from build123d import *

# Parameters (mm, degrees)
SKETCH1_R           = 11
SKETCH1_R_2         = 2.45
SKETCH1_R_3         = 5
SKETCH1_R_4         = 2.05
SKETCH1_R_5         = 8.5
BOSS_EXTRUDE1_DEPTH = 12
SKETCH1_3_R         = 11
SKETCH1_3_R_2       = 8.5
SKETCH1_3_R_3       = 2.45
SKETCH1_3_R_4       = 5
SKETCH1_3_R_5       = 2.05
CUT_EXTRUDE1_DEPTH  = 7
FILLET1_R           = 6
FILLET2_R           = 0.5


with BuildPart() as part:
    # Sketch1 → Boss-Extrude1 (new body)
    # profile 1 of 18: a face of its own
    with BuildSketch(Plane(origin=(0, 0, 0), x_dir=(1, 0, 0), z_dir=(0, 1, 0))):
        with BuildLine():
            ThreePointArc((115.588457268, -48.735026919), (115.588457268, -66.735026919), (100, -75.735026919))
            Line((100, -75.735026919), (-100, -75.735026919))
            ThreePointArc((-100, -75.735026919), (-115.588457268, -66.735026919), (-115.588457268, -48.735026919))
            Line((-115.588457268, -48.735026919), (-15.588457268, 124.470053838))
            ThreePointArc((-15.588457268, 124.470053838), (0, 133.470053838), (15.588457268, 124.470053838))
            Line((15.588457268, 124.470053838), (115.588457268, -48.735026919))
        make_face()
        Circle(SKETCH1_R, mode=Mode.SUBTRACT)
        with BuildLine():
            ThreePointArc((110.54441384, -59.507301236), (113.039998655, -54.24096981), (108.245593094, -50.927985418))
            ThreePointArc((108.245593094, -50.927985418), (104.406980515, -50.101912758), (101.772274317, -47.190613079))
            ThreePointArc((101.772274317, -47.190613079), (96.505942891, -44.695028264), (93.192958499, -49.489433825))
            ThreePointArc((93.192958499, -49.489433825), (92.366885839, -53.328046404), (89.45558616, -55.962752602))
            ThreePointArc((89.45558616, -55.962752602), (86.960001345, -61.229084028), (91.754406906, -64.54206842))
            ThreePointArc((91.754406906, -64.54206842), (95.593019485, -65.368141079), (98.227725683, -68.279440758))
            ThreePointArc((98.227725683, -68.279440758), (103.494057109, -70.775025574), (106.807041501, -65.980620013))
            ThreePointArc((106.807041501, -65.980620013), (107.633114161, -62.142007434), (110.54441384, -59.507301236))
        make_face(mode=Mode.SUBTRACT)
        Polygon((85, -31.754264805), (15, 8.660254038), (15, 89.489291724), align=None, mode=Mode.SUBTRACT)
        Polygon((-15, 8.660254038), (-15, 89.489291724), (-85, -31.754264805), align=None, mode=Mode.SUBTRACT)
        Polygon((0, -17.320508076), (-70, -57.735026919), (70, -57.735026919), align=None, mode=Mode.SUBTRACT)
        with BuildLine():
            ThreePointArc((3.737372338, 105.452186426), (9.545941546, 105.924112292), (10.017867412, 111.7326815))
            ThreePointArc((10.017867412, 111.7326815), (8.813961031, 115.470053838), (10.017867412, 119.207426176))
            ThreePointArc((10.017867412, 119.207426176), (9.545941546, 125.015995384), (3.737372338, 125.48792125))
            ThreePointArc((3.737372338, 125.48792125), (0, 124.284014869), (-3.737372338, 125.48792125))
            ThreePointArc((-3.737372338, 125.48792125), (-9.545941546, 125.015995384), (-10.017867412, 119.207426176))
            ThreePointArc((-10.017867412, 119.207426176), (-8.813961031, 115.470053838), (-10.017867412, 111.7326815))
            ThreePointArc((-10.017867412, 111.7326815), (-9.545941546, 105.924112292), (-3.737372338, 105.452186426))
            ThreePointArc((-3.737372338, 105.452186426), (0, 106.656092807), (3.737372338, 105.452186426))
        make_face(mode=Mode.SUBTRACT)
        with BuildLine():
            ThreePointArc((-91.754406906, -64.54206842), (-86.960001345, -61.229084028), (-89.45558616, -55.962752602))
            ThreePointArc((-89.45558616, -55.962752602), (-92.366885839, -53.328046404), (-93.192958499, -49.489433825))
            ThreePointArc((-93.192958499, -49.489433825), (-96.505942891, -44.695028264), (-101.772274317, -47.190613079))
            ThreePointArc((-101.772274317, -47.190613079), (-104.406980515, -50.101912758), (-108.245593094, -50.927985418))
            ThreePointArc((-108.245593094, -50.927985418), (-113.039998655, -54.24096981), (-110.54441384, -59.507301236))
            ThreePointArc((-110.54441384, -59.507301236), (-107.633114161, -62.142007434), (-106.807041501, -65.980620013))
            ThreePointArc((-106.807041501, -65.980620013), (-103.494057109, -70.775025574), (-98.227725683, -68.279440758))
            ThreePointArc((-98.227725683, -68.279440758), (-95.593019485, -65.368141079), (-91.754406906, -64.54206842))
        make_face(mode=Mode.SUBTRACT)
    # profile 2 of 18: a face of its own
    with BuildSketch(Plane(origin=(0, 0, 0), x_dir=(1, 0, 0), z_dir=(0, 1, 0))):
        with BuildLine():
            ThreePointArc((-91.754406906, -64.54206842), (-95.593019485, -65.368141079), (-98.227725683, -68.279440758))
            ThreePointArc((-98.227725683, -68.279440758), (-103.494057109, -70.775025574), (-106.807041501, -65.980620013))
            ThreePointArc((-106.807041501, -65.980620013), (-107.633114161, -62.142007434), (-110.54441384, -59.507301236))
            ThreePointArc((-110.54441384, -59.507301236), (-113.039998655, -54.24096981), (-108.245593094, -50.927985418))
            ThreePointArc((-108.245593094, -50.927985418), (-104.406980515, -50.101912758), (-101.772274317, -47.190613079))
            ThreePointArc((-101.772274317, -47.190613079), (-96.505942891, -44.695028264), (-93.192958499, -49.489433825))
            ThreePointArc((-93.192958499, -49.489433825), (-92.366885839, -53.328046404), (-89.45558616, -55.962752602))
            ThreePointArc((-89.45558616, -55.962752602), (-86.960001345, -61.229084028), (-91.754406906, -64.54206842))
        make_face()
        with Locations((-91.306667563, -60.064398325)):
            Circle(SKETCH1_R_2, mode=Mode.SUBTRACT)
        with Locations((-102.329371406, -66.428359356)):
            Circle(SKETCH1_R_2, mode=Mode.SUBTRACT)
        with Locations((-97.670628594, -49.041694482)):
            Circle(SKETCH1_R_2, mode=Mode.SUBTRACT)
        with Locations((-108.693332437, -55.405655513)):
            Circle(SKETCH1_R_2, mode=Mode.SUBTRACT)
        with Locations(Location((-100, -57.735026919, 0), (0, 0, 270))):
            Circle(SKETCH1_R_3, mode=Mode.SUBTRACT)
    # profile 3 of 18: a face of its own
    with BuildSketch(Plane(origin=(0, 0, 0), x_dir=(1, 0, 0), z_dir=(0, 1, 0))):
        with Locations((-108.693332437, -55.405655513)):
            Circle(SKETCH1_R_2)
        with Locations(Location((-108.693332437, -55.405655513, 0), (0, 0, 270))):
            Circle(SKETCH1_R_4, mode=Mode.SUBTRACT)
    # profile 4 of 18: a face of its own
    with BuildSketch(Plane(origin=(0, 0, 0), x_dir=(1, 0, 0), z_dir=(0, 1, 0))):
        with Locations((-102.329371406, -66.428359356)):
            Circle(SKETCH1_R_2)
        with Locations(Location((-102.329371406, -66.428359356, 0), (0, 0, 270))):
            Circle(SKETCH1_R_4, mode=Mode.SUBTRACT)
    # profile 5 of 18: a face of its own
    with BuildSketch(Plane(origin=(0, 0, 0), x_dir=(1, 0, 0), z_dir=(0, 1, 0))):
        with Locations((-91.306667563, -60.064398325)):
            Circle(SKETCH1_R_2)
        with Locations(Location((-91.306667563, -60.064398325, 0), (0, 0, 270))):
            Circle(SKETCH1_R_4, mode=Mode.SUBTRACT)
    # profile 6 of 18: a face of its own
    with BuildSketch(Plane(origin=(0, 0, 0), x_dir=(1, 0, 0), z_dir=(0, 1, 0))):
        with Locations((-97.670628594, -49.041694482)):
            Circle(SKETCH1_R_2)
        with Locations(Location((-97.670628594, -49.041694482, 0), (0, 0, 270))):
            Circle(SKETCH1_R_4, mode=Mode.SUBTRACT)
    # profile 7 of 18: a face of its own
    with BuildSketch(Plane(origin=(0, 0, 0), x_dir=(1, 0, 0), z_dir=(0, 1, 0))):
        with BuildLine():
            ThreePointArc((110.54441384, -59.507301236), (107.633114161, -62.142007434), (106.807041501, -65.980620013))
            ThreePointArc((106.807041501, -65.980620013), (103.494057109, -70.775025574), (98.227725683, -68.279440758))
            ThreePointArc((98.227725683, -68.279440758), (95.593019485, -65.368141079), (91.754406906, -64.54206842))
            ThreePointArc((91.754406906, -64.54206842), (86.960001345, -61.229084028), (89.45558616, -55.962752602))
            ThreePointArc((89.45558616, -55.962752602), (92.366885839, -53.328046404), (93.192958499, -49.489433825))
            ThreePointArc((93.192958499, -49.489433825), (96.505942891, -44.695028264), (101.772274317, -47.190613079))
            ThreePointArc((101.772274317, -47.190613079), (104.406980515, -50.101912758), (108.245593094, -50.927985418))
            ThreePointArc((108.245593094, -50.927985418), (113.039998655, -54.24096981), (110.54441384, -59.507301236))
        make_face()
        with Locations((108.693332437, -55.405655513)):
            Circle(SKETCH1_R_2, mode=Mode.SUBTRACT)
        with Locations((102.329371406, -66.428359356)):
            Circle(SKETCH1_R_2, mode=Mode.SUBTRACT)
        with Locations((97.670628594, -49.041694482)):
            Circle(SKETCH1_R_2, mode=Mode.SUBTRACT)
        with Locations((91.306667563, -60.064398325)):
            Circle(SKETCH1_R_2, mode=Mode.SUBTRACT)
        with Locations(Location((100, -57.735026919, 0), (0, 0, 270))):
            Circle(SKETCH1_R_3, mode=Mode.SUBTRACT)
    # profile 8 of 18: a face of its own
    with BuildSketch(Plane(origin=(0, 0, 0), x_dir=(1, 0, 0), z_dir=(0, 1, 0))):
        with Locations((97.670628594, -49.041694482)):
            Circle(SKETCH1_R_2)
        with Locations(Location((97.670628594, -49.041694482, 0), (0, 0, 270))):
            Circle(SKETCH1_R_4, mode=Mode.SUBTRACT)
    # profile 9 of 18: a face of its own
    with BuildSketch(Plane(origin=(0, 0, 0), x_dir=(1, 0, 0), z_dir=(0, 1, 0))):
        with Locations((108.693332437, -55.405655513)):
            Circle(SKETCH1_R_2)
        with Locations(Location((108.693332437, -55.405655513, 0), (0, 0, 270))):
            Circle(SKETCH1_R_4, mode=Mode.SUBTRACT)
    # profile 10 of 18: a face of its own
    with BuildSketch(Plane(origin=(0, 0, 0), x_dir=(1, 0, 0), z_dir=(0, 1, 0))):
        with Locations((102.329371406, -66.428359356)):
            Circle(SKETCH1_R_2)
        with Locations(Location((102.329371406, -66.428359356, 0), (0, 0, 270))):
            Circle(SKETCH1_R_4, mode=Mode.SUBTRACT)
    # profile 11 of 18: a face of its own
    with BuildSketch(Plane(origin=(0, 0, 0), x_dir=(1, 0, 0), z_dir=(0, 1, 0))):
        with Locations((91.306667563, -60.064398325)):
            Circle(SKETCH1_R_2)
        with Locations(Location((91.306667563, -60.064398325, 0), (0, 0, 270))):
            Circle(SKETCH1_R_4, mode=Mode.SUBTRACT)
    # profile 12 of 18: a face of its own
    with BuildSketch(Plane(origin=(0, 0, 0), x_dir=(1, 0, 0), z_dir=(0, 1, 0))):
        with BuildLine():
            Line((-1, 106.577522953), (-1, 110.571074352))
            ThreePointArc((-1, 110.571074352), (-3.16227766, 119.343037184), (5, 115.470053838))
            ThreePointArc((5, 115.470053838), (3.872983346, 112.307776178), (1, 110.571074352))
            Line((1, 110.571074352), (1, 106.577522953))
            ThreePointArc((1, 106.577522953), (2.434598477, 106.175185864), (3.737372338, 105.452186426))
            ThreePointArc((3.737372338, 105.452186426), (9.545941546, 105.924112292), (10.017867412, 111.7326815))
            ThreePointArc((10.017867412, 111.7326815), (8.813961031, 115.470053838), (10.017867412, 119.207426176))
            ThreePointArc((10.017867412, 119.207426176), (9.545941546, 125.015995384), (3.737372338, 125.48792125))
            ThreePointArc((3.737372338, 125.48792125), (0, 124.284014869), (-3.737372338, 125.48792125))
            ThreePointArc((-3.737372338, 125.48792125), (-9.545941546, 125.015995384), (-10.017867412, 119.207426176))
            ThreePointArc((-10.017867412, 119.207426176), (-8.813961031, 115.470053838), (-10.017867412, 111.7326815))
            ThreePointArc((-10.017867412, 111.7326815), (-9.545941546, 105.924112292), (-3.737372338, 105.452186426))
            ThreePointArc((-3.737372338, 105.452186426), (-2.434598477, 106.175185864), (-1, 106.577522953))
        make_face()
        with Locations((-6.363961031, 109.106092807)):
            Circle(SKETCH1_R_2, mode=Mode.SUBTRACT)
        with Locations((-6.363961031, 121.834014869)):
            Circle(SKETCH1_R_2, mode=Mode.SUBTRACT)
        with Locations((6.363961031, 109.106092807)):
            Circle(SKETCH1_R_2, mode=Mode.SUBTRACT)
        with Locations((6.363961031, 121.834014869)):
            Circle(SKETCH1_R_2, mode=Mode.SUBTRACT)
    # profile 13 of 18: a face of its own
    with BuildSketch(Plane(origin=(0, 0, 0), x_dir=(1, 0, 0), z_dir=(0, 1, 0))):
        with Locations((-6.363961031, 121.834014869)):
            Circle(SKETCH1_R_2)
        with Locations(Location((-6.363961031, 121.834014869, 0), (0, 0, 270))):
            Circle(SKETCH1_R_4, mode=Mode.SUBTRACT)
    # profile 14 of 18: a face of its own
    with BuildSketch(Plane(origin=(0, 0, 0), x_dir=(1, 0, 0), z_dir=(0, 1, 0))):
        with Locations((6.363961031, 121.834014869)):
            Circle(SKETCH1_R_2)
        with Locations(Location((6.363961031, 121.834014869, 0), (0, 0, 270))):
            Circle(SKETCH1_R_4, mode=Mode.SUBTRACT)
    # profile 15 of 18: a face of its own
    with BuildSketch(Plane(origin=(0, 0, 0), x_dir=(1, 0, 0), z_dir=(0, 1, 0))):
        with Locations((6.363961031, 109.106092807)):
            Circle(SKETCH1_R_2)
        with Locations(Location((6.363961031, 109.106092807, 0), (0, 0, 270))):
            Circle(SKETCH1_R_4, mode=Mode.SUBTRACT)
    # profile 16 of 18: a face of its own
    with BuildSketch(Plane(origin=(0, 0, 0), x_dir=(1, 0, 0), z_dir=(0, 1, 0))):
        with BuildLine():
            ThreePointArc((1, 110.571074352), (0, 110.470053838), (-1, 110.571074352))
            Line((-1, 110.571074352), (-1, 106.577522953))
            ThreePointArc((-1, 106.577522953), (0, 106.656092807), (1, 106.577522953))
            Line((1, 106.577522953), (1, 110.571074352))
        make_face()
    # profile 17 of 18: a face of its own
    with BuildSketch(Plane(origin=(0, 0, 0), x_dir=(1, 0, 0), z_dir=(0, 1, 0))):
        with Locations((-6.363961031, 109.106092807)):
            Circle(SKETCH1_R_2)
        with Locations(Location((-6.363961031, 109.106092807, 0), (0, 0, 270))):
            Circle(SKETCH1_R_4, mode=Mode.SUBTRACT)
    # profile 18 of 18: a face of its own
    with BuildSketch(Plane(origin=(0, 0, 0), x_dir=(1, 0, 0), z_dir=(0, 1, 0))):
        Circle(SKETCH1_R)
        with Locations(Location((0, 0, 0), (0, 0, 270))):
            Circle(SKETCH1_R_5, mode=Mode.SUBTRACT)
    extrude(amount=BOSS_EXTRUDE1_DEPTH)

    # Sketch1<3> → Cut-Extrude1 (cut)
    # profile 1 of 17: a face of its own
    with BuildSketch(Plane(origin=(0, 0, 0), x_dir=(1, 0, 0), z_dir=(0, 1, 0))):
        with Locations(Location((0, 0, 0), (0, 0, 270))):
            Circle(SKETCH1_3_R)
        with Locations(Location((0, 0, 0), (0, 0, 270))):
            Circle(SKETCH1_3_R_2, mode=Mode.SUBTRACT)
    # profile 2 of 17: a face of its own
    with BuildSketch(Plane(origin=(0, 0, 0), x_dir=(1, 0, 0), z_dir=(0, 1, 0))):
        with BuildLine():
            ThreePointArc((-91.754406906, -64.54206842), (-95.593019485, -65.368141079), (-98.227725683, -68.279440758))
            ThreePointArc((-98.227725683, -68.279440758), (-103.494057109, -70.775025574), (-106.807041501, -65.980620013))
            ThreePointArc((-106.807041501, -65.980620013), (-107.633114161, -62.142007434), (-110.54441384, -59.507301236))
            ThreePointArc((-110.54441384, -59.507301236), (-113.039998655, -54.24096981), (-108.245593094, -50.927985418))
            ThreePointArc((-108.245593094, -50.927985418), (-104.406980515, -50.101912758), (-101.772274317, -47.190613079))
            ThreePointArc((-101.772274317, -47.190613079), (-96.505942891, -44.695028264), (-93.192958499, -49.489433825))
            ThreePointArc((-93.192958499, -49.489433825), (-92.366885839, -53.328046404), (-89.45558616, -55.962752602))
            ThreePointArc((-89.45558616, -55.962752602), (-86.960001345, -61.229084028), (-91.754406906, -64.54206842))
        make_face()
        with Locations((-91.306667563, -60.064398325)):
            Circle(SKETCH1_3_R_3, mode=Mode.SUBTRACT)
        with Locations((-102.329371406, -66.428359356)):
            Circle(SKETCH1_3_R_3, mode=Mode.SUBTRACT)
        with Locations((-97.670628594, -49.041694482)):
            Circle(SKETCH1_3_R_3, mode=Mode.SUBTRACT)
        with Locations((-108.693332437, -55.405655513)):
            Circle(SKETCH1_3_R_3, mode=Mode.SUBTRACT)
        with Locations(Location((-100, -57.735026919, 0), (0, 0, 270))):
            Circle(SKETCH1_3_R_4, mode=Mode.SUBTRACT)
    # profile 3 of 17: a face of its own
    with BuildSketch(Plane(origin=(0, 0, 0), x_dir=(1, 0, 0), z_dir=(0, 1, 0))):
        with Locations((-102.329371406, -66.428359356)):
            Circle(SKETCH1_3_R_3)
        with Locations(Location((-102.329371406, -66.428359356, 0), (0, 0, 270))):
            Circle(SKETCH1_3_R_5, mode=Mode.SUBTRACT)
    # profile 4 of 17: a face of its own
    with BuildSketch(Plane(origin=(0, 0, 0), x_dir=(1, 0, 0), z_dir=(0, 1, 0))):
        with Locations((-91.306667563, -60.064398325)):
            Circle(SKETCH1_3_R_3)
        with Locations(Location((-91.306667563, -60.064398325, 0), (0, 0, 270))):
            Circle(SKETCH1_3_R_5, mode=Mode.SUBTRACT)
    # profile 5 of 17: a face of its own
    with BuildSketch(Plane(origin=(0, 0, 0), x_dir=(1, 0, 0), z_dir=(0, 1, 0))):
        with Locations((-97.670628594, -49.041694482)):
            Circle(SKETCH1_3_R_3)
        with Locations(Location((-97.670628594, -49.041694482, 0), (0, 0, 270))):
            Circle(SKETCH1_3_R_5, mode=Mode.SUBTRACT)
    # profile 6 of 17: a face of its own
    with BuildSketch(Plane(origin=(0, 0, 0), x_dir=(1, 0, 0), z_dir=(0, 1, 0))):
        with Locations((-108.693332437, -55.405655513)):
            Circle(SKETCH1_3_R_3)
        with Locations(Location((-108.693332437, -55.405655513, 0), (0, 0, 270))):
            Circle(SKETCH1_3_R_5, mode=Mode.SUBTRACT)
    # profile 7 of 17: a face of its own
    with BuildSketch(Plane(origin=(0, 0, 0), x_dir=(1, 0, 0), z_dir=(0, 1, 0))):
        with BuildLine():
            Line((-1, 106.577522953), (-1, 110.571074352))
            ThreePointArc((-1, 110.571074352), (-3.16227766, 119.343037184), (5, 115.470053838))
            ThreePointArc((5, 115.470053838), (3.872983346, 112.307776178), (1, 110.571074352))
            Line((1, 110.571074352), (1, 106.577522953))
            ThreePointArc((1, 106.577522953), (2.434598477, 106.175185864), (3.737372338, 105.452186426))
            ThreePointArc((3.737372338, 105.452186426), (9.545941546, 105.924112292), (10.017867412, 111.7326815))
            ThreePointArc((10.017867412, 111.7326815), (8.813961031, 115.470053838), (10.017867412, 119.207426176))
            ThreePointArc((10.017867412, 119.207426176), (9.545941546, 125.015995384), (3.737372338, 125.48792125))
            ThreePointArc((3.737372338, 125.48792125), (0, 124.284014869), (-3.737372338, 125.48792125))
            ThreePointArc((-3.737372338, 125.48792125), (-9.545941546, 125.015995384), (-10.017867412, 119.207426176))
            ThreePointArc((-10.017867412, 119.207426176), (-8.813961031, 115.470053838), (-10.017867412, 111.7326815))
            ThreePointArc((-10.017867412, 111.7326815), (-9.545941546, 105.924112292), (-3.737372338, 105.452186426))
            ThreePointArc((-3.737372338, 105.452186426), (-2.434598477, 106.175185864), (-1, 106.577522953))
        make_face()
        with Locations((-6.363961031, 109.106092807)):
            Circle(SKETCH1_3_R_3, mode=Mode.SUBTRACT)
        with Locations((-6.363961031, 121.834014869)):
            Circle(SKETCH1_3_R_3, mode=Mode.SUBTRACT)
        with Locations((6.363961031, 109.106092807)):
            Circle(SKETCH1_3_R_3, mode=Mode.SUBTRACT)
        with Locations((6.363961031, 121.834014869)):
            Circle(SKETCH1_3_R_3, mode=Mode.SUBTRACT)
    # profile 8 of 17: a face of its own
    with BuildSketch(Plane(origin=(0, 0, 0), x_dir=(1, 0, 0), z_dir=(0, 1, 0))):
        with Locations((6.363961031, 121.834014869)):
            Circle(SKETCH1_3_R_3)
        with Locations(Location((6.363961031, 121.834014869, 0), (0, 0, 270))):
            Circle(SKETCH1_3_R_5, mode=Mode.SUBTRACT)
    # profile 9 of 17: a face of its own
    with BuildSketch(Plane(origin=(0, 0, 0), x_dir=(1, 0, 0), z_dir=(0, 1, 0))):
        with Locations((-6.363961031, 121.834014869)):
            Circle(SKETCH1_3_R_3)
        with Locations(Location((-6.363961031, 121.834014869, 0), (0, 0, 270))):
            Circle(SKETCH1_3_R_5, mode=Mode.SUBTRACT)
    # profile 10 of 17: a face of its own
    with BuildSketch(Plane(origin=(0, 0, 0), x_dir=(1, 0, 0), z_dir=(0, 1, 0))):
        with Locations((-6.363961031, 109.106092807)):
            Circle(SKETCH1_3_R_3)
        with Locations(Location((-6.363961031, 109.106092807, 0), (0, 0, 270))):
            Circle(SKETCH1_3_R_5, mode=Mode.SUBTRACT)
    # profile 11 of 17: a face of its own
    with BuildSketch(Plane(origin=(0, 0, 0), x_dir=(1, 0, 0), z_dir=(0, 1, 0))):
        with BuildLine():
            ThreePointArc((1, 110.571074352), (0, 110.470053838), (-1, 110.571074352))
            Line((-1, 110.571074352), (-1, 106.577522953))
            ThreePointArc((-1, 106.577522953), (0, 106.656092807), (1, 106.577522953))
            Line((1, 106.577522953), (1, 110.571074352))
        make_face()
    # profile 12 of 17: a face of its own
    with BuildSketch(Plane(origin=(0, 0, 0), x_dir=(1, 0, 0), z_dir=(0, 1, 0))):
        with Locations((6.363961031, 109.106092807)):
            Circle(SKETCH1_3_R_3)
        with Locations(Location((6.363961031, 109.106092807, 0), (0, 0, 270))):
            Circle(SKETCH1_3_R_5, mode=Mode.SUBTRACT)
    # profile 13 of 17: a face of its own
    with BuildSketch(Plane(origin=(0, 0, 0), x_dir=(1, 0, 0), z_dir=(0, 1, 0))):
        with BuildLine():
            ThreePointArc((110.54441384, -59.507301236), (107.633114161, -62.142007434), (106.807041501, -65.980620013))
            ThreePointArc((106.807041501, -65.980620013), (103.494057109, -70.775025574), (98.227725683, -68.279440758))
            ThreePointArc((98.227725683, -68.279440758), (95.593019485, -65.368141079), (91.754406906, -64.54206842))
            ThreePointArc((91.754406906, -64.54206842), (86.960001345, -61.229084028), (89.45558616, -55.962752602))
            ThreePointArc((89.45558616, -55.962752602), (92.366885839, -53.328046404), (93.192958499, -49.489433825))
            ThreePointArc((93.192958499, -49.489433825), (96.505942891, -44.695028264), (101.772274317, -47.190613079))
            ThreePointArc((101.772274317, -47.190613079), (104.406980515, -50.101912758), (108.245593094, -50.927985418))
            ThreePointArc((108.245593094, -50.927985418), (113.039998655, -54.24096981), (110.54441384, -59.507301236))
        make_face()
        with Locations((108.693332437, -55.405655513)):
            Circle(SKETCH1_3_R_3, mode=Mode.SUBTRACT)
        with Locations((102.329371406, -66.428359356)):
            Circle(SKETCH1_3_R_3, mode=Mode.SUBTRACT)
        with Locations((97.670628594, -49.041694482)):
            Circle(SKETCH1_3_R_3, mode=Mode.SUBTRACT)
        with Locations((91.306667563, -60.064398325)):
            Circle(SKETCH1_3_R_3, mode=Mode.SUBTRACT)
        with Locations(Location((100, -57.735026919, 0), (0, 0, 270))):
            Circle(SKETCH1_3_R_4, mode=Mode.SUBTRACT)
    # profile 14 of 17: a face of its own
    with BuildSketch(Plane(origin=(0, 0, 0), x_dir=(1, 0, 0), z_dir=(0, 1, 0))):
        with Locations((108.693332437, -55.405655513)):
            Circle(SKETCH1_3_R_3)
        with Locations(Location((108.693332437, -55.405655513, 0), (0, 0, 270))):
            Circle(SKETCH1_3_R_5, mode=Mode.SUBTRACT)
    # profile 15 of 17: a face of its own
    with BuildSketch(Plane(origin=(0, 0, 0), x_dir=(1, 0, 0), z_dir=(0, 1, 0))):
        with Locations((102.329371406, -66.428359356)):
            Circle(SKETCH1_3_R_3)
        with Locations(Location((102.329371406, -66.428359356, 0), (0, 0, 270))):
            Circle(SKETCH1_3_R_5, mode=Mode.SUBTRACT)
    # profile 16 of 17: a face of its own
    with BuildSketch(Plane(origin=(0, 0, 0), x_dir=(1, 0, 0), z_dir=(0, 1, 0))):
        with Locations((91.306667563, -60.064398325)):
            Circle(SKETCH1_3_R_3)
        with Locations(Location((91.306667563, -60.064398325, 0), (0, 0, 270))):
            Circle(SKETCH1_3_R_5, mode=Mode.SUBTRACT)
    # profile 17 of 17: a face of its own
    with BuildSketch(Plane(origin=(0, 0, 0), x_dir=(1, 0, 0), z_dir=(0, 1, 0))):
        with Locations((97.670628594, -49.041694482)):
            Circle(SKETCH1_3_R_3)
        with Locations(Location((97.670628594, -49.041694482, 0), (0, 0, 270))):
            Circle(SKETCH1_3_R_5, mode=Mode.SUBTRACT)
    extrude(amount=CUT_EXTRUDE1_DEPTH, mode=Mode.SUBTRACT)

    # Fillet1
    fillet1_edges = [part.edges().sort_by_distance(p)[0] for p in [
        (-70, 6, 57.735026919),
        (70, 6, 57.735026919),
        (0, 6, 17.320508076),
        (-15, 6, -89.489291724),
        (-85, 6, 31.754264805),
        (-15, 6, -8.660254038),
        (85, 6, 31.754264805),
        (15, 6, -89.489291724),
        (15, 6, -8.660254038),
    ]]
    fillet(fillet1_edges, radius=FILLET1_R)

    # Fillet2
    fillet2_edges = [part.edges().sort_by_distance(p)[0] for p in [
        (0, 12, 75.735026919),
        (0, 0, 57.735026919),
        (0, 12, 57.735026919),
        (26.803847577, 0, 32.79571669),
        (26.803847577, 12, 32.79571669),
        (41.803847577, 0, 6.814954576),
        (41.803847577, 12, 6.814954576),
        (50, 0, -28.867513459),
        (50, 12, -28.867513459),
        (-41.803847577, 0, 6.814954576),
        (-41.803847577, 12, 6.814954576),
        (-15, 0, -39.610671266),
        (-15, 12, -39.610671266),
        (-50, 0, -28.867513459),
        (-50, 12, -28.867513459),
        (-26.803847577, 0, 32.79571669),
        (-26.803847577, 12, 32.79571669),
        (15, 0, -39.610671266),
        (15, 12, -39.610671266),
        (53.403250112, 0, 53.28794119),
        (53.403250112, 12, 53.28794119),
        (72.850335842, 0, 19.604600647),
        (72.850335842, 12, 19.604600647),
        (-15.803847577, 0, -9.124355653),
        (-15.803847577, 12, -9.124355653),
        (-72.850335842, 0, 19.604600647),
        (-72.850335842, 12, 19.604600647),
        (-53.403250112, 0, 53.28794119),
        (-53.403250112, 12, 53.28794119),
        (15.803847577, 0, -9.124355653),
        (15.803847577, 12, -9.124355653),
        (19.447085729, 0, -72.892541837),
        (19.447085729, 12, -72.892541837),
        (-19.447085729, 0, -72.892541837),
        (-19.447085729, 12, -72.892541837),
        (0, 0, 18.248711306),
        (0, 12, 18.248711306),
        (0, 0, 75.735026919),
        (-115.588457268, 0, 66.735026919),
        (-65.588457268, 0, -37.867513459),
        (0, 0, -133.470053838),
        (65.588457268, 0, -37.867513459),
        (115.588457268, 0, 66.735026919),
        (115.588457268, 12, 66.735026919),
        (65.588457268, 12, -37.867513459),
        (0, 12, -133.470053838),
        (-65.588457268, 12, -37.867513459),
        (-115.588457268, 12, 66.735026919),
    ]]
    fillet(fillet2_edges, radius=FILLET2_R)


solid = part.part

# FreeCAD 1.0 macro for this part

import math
import FreeCAD as App
import Part
import Sketcher
Q = App.Units.Quantity


def edges_at(feature, points):
    """Names of the edges that pass closest to the given points."""
    edges = feature.Shape.Edges
    near = lambda p: min(range(len(edges)), key=lambda i: edges[i].distToShape(Part.Vertex(*p))[0])
    return sorted({f"Edge{near(p) + 1}" for p in points})

doc = App.newDocument("Part")
body = doc.addObject("PartDesign::Body", "Body")

# Sketch on XZ plane
sketch1 = body.newObject("Sketcher::SketchObject", "Sketch")
sketch1.AttachmentSupport = (doc.getObject("XZ_Plane"), [""])
sketch1.MapMode = "FlatFace"
sketch1.addGeometry([
    Part.ArcOfCircle(Part.Circle(App.Vector(100, 57.7, 0), App.Vector(0, 0, 1), 18), math.radians(-30), math.radians(90)),  # 0
    Part.LineSegment(App.Vector(115.6, 48.7, 0), App.Vector(15.6, -124.5, 0)),  # 1
    Part.ArcOfCircle(Part.Circle(App.Vector(0, -115.5, 0), App.Vector(0, 0, 1), 18), math.radians(-150), math.radians(-30)),  # 2
    Part.LineSegment(App.Vector(-15.6, -124.5, 0), App.Vector(-115.6, 48.7, 0)),  # 3
    Part.ArcOfCircle(Part.Circle(App.Vector(-100, 57.7, 0), App.Vector(0, 0, 1), 18), math.radians(90), math.radians(210)),  # 4
    Part.LineSegment(App.Vector(-100, 75.7, 0), App.Vector(100, 75.7, 0)),  # 5
    Part.LineSegment(App.Vector(0, 17.3, 0), App.Vector(70, 57.7, 0)),  # 6
    Part.LineSegment(App.Vector(70, 57.7, 0), App.Vector(-70, 57.7, 0)),  # 7
    Part.LineSegment(App.Vector(-70, 57.7, 0), App.Vector(0, 17.3, 0)),  # 8
    Part.LineSegment(App.Vector(85, 31.8, 0), App.Vector(15, -8.7, 0)),  # 9
    Part.LineSegment(App.Vector(15, -8.7, 0), App.Vector(15, -89.5, 0)),  # 10
    Part.LineSegment(App.Vector(15, -89.5, 0), App.Vector(85, 31.8, 0)),  # 11
    Part.LineSegment(App.Vector(-15, -8.7, 0), App.Vector(-85, 31.8, 0)),  # 12
    Part.LineSegment(App.Vector(-85, 31.8, 0), App.Vector(-15, -89.5, 0)),  # 13
    Part.LineSegment(App.Vector(-15, -89.5, 0), App.Vector(-15, -8.7, 0)),  # 14
    Part.Circle(App.Vector(100, 57.7, 0), App.Vector(0, 0, 1), 5),  # 15
    Part.Circle(App.Vector(-100, 57.7, 0), App.Vector(0, 0, 1), 5),  # 16
    Part.Circle(App.Vector(0, 0, 0), App.Vector(0, 0, 1), 8.5),  # 17
    Part.ArcOfCircle(Part.Circle(App.Vector(0, -115.5, 0), App.Vector(0, 0, 1), 5), math.radians(102), math.radians(360)),  # 18
    Part.ArcOfCircle(Part.Circle(App.Vector(0, -115.5, 0), App.Vector(0, 0, 1), 5), math.radians(0), math.radians(78)),  # 19
    Part.ArcOfCircle(Part.Circle(App.Vector(0, -115.5, 0), App.Vector(0, 0, 1), 5), math.radians(78), math.radians(102)),  # 20
    Part.Circle(App.Vector(97.7, 49, 0), App.Vector(0, 0, 1), 2),  # 21
    Part.Circle(App.Vector(108.7, 55.4, 0), App.Vector(0, 0, 1), 2),  # 22
    Part.Circle(App.Vector(102.3, 66.4, 0), App.Vector(0, 0, 1), 2),  # 23
    Part.Circle(App.Vector(91.3, 60.1, 0), App.Vector(0, 0, 1), 2),  # 24
    Part.Circle(App.Vector(-108.7, 55.4, 0), App.Vector(0, 0, 1), 2),  # 25
    Part.Circle(App.Vector(-91.3, 60.1, 0), App.Vector(0, 0, 1), 2),  # 26
    Part.Circle(App.Vector(-102.3, 66.4, 0), App.Vector(0, 0, 1), 2),  # 27
    Part.Circle(App.Vector(-97.7, 49, 0), App.Vector(0, 0, 1), 2),  # 28
    Part.Circle(App.Vector(6.4, -121.8, 0), App.Vector(0, 0, 1), 2),  # 29
    Part.Circle(App.Vector(6.4, -109.1, 0), App.Vector(0, 0, 1), 2),  # 30
    Part.Circle(App.Vector(-6.4, -121.8, 0), App.Vector(0, 0, 1), 2),  # 31
    Part.Circle(App.Vector(-6.4, -109.1, 0), App.Vector(0, 0, 1), 2),  # 32
], False)
sketch1.addConstraint([
    Sketcher.Constraint("Tangent", 0, 1, 1, 1),
    Sketcher.Constraint("Tangent", 1, 2, 2, 2),
    Sketcher.Constraint("Tangent", 2, 1, 3, 1),
    Sketcher.Constraint("Tangent", 3, 2, 4, 2),
    Sketcher.Constraint("Tangent", 4, 1, 5, 1),
    Sketcher.Constraint("Tangent", 5, 2, 0, 2),
    Sketcher.Constraint("Coincident", 6, 2, 7, 1),
    Sketcher.Constraint("Coincident", 7, 2, 8, 1),
    Sketcher.Constraint("Coincident", 8, 2, 6, 1),
    Sketcher.Constraint("Coincident", 9, 2, 10, 1),
    Sketcher.Constraint("Coincident", 10, 2, 11, 1),
    Sketcher.Constraint("Coincident", 11, 2, 9, 1),
    Sketcher.Constraint("Coincident", 12, 2, 13, 1),
    Sketcher.Constraint("Coincident", 13, 2, 14, 1),
    Sketcher.Constraint("Coincident", 14, 2, 12, 1),
    Sketcher.Constraint("Tangent", 18, 2, 19, 1),
    Sketcher.Constraint("Tangent", 19, 2, 20, 1),
    Sketcher.Constraint("Tangent", 20, 2, 18, 1),
    Sketcher.Constraint("Horizontal", 5),
    Sketcher.Constraint("Horizontal", 7),
    Sketcher.Constraint("Vertical", 10),
    Sketcher.Constraint("Vertical", 14),
    Sketcher.Constraint("Coincident", 17, 3, -1, 1),
    Sketcher.Constraint("Coincident", 15, 3, 0, 3),
    Sketcher.Constraint("Coincident", 16, 3, 4, 3),
    Sketcher.Constraint("Coincident", 18, 3, 2, 3),
    Sketcher.Constraint("Equal", 0, 2),
    Sketcher.Constraint("Equal", 2, 4),
    Sketcher.Constraint("Equal", 15, 16),
    Sketcher.Constraint("Equal", 16, 18),
    Sketcher.Constraint("Equal", 21, 22),
    Sketcher.Constraint("Equal", 22, 23),
    Sketcher.Constraint("Equal", 23, 24),
    Sketcher.Constraint("Equal", 24, 25),
    Sketcher.Constraint("Equal", 25, 26),
    Sketcher.Constraint("Equal", 26, 27),
    Sketcher.Constraint("Equal", 27, 28),
    Sketcher.Constraint("Equal", 28, 29),
    Sketcher.Constraint("Equal", 29, 30),
    Sketcher.Constraint("Equal", 30, 31),
    Sketcher.Constraint("Equal", 31, 32),
    Sketcher.Constraint("Symmetric", 22, 3, 25, 3, -2),
    Sketcher.Constraint("Symmetric", 24, 3, 26, 3, -2),
    Sketcher.Constraint("Symmetric", 23, 3, 27, 3, -2),
    Sketcher.Constraint("Symmetric", 21, 3, 28, 3, -2),
    Sketcher.Constraint("Symmetric", 29, 3, 31, 3, -2),
    Sketcher.Constraint("Symmetric", 30, 3, 32, 3, -2),
    Sketcher.Constraint("Symmetric", 1, 2, 2, 1, -2),
    Sketcher.Constraint("Symmetric", 11, 2, 12, 2, -2),
    Sketcher.Constraint("Symmetric", 10, 2, 13, 2, -2),
    Sketcher.Constraint("PointOnObject", 8, 2, -2),
    Sketcher.Constraint("Perpendicular", 3, 6),
    Sketcher.Constraint("Perpendicular", 1, 8),
    Sketcher.Constraint("Parallel", 6, 9),
    Sketcher.Constraint("Perpendicular", 8, 11),
    Sketcher.Constraint("Perpendicular", 11, 12),
    Sketcher.Constraint("Horizontal", 16, 3, 6, 2),
    Sketcher.Constraint("Horizontal", 20, 3, 18, 2),
    Sketcher.Constraint("Horizontal", 19, 2, 20, 2),
    Sketcher.Constraint("Vertical", 29, 3, 30, 3),
    Sketcher.Constraint("Equal", 8, 9),
    Sketcher.Constraint("Diameter", 15, 10.0),
    Sketcher.Constraint("Diameter", 17, 17.0),
    Sketcher.Constraint("Radius", 0, 18.0),
    Sketcher.Constraint("Diameter", 21, 4.1),
    Sketcher.Constraint("DistanceX", 5, 1, 5, 2, 200.0),
    Sketcher.Constraint("DistanceX", 7, 2, 7, 1, 140.0),
    Sketcher.Constraint("Angle", 1, Q("-120 deg")),
    Sketcher.Constraint("DistanceX", -1, 1, 9, 2, 15.0),
    Sketcher.Constraint("DistanceX", -1, 1, 19, 2, 1.0),
    Sketcher.Constraint("DistanceX", 25, 3, 24, 3, 200.0),
    Sketcher.Constraint("DistanceY", -1, 1, 24, 3, 60.064398),
    Sketcher.Constraint("DistanceY", 30, 3, 10, 2, 19.616801),
    Sketcher.Constraint("DistanceX", -1, 1, 21, 3, 97.670629),
    Sketcher.Constraint("DistanceX", -1, 1, 23, 3, 102.329371),
    Sketcher.Constraint("DistanceY", -1, 1, 23, 3, 66.428359),
    Sketcher.Constraint("DistanceX", -1, 1, 29, 3, 6.363961),
    Sketcher.Constraint("DistanceY", -1, 1, 8, 2, 17.320508),
    Sketcher.Constraint("DistanceY", 10, 2, -1, 1, 89.489292),
    Sketcher.Constraint("DistanceY", 2, 3, 21, 3, 164.511748),
    Sketcher.Constraint("DistanceY", 22, 3, 0, 3, 2.329371),
    Sketcher.Constraint("DistanceX", 23, 3, 22, 3, 6.363961),
    Sketcher.Constraint("DistanceY", 29, 3, 20, 3, 6.363961),
])
pad1 = body.newObject("PartDesign::Pad", "Pad")
pad1.Profile = sketch1
pad1.Length = 12
pad1.Reversed = True

# Sketch on XZ plane
sketch2 = body.newObject("Sketcher::SketchObject", "Sketch001")
sketch2.AttachmentSupport = (doc.getObject("XZ_Plane"), [""])
sketch2.MapMode = "FlatFace"
sketch2.addGeometry([
    Part.Circle(App.Vector(0, 0, 0), App.Vector(0, 0, 1), 11),  # 0
    Part.Circle(App.Vector(0, 0, 0), App.Vector(0, 0, 1), 8.5),  # 1
    Part.ArcOfCircle(Part.Circle(App.Vector(-92.4, 70.9, 0), App.Vector(0, 0, 1), 6.4), math.radians(-156), math.radians(-84)),  # 2
    Part.ArcOfCircle(Part.Circle(App.Vector(-91.3, 60.1, 0), App.Vector(0, 0, 1), 4.5), math.radians(-66), math.radians(96)),  # 3
    Part.ArcOfCircle(Part.Circle(App.Vector(-86.8, 50.1, 0), App.Vector(0, 0, 1), 6.4), math.radians(114), math.radians(186)),  # 4
    Part.ArcOfCircle(Part.Circle(App.Vector(-97.7, 49, 0), App.Vector(0, 0, 1), 4.5), math.radians(-156), math.radians(6)),  # 5
    Part.ArcOfCircle(Part.Circle(App.Vector(-107.6, 44.6, 0), App.Vector(0, 0, 1), 6.4), math.radians(24), math.radians(96)),  # 6
    Part.ArcOfCircle(Part.Circle(App.Vector(-108.7, 55.4, 0), App.Vector(0, 0, 1), 4.5), math.radians(114), math.radians(276)),  # 7
    Part.ArcOfCircle(Part.Circle(App.Vector(-113.2, 65.3, 0), App.Vector(0, 0, 1), 6.4), math.radians(-66), math.radians(6)),  # 8
    Part.ArcOfCircle(Part.Circle(App.Vector(-102.3, 66.4, 0), App.Vector(0, 0, 1), 4.5), math.radians(24), math.radians(186)),  # 9
    Part.Circle(App.Vector(-100, 57.7, 0), App.Vector(0, 0, 1), 5),  # 10
    Part.Circle(App.Vector(-91.3, 60.1, 0), App.Vector(0, 0, 1), 2),  # 11
    Part.Circle(App.Vector(-102.3, 66.4, 0), App.Vector(0, 0, 1), 2),  # 12
    Part.Circle(App.Vector(-97.7, 49, 0), App.Vector(0, 0, 1), 2),  # 13
    Part.Circle(App.Vector(-108.7, 55.4, 0), App.Vector(0, 0, 1), 2),  # 14
    Part.ArcOfCircle(Part.Circle(App.Vector(0, -100.3, 0), App.Vector(0, 0, 1), 6.4), math.radians(-126), math.radians(-99)),  # 15
    Part.ArcOfCircle(Part.Circle(App.Vector(0, -100.3, 0), App.Vector(0, 0, 1), 6.4), math.radians(-98.98), math.radians(-81.02)),  # 16
    Part.ArcOfCircle(Part.Circle(App.Vector(0, -100.3, 0), App.Vector(0, 0, 1), 6.4), math.radians(-81), math.radians(-54)),  # 17
    Part.ArcOfCircle(Part.Circle(App.Vector(6.4, -109.1, 0), App.Vector(0, 0, 1), 4.5), math.radians(-36), math.radians(126)),  # 18
    Part.ArcOfCircle(Part.Circle(App.Vector(15.2, -115.5, 0), App.Vector(0, 0, 1), 6.4), math.radians(144), math.radians(216)),  # 19
    Part.ArcOfCircle(Part.Circle(App.Vector(6.4, -121.8, 0), App.Vector(0, 0, 1), 4.5), math.radians(-126), math.radians(36)),  # 20
    Part.ArcOfCircle(Part.Circle(App.Vector(0, -130.7, 0), App.Vector(0, 0, 1), 6.4), math.radians(54), math.radians(126)),  # 21
    Part.ArcOfCircle(Part.Circle(App.Vector(-6.4, -121.8, 0), App.Vector(0, 0, 1), 4.5), math.radians(144), math.radians(306)),  # 22
    Part.ArcOfCircle(Part.Circle(App.Vector(-15.2, -115.5, 0), App.Vector(0, 0, 1), 6.4), math.radians(-36), math.radians(36)),  # 23
    Part.ArcOfCircle(Part.Circle(App.Vector(-6.4, -109.1, 0), App.Vector(0, 0, 1), 4.5), math.radians(54), math.radians(216)),  # 24
    Part.ArcOfCircle(Part.Circle(App.Vector(0, -115.5, 0), App.Vector(0, 0, 1), 5), math.radians(102), math.radians(360)),  # 25
    Part.ArcOfCircle(Part.Circle(App.Vector(0, -115.5, 0), App.Vector(0, 0, 1), 5), math.radians(0), math.radians(78)),  # 26
    Part.ArcOfCircle(Part.Circle(App.Vector(0, -115.5, 0), App.Vector(0, 0, 1), 5), math.radians(78), math.radians(102)),  # 27
    Part.Circle(App.Vector(-6.4, -109.1, 0), App.Vector(0, 0, 1), 2),  # 28
    Part.Circle(App.Vector(6.4, -109.1, 0), App.Vector(0, 0, 1), 2),  # 29
    Part.Circle(App.Vector(-6.4, -121.8, 0), App.Vector(0, 0, 1), 2),  # 30
    Part.Circle(App.Vector(6.4, -121.8, 0), App.Vector(0, 0, 1), 2),  # 31
    Part.ArcOfCircle(Part.Circle(App.Vector(113.2, 65.3, 0), App.Vector(0, 0, 1), 6.4), math.radians(174), math.radians(246)),  # 32
    Part.ArcOfCircle(Part.Circle(App.Vector(108.7, 55.4, 0), App.Vector(0, 0, 1), 4.5), math.radians(-96), math.radians(66)),  # 33
    Part.ArcOfCircle(Part.Circle(App.Vector(107.6, 44.6, 0), App.Vector(0, 0, 1), 6.4), math.radians(84), math.radians(156)),  # 34
    Part.ArcOfCircle(Part.Circle(App.Vector(97.7, 49, 0), App.Vector(0, 0, 1), 4.5), math.radians(174), math.radians(336)),  # 35
    Part.ArcOfCircle(Part.Circle(App.Vector(86.8, 50.1, 0), App.Vector(0, 0, 1), 6.4), math.radians(-6), math.radians(66)),  # 36
    Part.ArcOfCircle(Part.Circle(App.Vector(91.3, 60.1, 0), App.Vector(0, 0, 1), 4.5), math.radians(84), math.radians(246)),  # 37
    Part.ArcOfCircle(Part.Circle(App.Vector(92.4, 70.9, 0), App.Vector(0, 0, 1), 6.4), math.radians(-96), math.radians(-24)),  # 38
    Part.ArcOfCircle(Part.Circle(App.Vector(102.3, 66.4, 0), App.Vector(0, 0, 1), 4.5), math.radians(-6), math.radians(156)),  # 39
    Part.Circle(App.Vector(100, 57.7, 0), App.Vector(0, 0, 1), 5),  # 40
    Part.Circle(App.Vector(102.3, 66.4, 0), App.Vector(0, 0, 1), 2),  # 41
    Part.Circle(App.Vector(91.3, 60.1, 0), App.Vector(0, 0, 1), 2),  # 42
    Part.Circle(App.Vector(108.7, 55.4, 0), App.Vector(0, 0, 1), 2),  # 43
    Part.Circle(App.Vector(97.7, 49, 0), App.Vector(0, 0, 1), 2),  # 44
], False)
sketch2.addConstraint([
    Sketcher.Constraint("Tangent", 2, 2, 3, 2),
    Sketcher.Constraint("Tangent", 3, 1, 4, 1),
    Sketcher.Constraint("Tangent", 4, 2, 5, 2),
    Sketcher.Constraint("Tangent", 5, 1, 6, 1),
    Sketcher.Constraint("Tangent", 6, 2, 7, 2),
    Sketcher.Constraint("Tangent", 7, 1, 8, 1),
    Sketcher.Constraint("Tangent", 8, 2, 9, 2),
    Sketcher.Constraint("Tangent", 9, 1, 2, 1),
    Sketcher.Constraint("Tangent", 15, 2, 16, 1),
    Sketcher.Constraint("Tangent", 16, 2, 17, 1),
    Sketcher.Constraint("Tangent", 17, 2, 18, 2),
    Sketcher.Constraint("Tangent", 18, 1, 19, 1),
    Sketcher.Constraint("Tangent", 19, 2, 20, 2),
    Sketcher.Constraint("Tangent", 20, 1, 21, 1),
    Sketcher.Constraint("Tangent", 21, 2, 22, 2),
    Sketcher.Constraint("Tangent", 22, 1, 23, 1),
    Sketcher.Constraint("Tangent", 23, 2, 24, 2),
    Sketcher.Constraint("Tangent", 24, 1, 15, 1),
    Sketcher.Constraint("Tangent", 25, 2, 26, 1),
    Sketcher.Constraint("Tangent", 26, 2, 27, 1),
    Sketcher.Constraint("Tangent", 27, 2, 25, 1),
    Sketcher.Constraint("Tangent", 32, 2, 33, 2),
    Sketcher.Constraint("Tangent", 33, 1, 34, 1),
    Sketcher.Constraint("Tangent", 34, 2, 35, 2),
    Sketcher.Constraint("Tangent", 35, 1, 36, 1),
    Sketcher.Constraint("Tangent", 36, 2, 37, 2),
    Sketcher.Constraint("Tangent", 37, 1, 38, 1),
    Sketcher.Constraint("Tangent", 38, 2, 39, 2),
    Sketcher.Constraint("Tangent", 39, 1, 32, 1),
    Sketcher.Constraint("Coincident", 0, 3, -1, 1),
    Sketcher.Constraint("Coincident", 1, 3, -1, 1),
    Sketcher.Constraint("Coincident", 11, 3, 3, 3),
    Sketcher.Constraint("Coincident", 12, 3, 9, 3),
    Sketcher.Constraint("Coincident", 13, 3, 5, 3),
    Sketcher.Constraint("Coincident", 14, 3, 7, 3),
    Sketcher.Constraint("Coincident", 17, 3, 15, 3),
    Sketcher.Constraint("Coincident", 28, 3, 24, 3),
    Sketcher.Constraint("Coincident", 29, 3, 18, 3),
    Sketcher.Constraint("Coincident", 30, 3, 22, 3),
    Sketcher.Constraint("Coincident", 31, 3, 20, 3),
    Sketcher.Constraint("Coincident", 41, 3, 39, 3),
    Sketcher.Constraint("Coincident", 42, 3, 37, 3),
    Sketcher.Constraint("Coincident", 43, 3, 33, 3),
    Sketcher.Constraint("Coincident", 44, 3, 35, 3),
    Sketcher.Constraint("Equal", 2, 4),
    Sketcher.Constraint("Equal", 3, 5),
    Sketcher.Constraint("Equal", 4, 6),
    Sketcher.Constraint("Equal", 5, 7),
    Sketcher.Constraint("Equal", 6, 8),
    Sketcher.Constraint("Equal", 7, 9),
    Sketcher.Constraint("Equal", 11, 12),
    Sketcher.Constraint("Equal", 12, 13),
    Sketcher.Constraint("Equal", 13, 14),
    Sketcher.Constraint("Equal", 8, 15),
    Sketcher.Constraint("Equal", 9, 18),
    Sketcher.Constraint("Equal", 17, 19),
    Sketcher.Constraint("Equal", 18, 20),
    Sketcher.Constraint("Equal", 19, 21),
    Sketcher.Constraint("Equal", 20, 22),
    Sketcher.Constraint("Equal", 21, 23),
    Sketcher.Constraint("Equal", 22, 24),
    Sketcher.Constraint("Equal", 10, 25),
    Sketcher.Constraint("Equal", 14, 28),
    Sketcher.Constraint("Equal", 28, 29),
    Sketcher.Constraint("Equal", 29, 30),
    Sketcher.Constraint("Equal", 30, 31),
    Sketcher.Constraint("Equal", 23, 32),
    Sketcher.Constraint("Equal", 24, 33),
    Sketcher.Constraint("Equal", 32, 34),
    Sketcher.Constraint("Equal", 33, 35),
    Sketcher.Constraint("Equal", 34, 36),
    Sketcher.Constraint("Equal", 35, 37),
    Sketcher.Constraint("Equal", 36, 38),
    Sketcher.Constraint("Equal", 37, 39),
    Sketcher.Constraint("Equal", 27, 40),
    Sketcher.Constraint("Equal", 31, 41),
    Sketcher.Constraint("Equal", 41, 42),
    Sketcher.Constraint("Equal", 42, 43),
    Sketcher.Constraint("Equal", 43, 44),
    Sketcher.Constraint("Symmetric", 20, 3, 22, 3, -2),
    Sketcher.Constraint("Symmetric", 18, 3, 24, 3, -2),
    Sketcher.Constraint("Symmetric", 8, 3, 32, 3, -2),
    Sketcher.Constraint("Symmetric", 6, 3, 34, 3, -2),
    Sketcher.Constraint("Symmetric", 4, 3, 36, 3, -2),
    Sketcher.Constraint("Symmetric", 2, 3, 38, 3, -2),
    Sketcher.Constraint("Symmetric", 10, 3, 40, 3, -2),
    Sketcher.Constraint("Symmetric", 26, 2, 27, 2, -2),
    Sketcher.Constraint("Horizontal", 23, 3, 25, 3),
    Sketcher.Constraint("Horizontal", 15, 2, 16, 2),
    Sketcher.Constraint("Horizontal", 27, 3, 25, 2),
    Sketcher.Constraint("Vertical", 18, 3, 20, 3),
    Sketcher.Constraint("Vertical", 16, 2, 26, 2),
    Sketcher.Constraint("Diameter", 0, 22.0),
    Sketcher.Constraint("Diameter", 1, 17.0),
    Sketcher.Constraint("Diameter", 10, 10.0),
    Sketcher.Constraint("Diameter", 11, 4.1),
    Sketcher.Constraint("Radius", 3, 4.5),
    Sketcher.Constraint("DistanceX", 10, 3, -1, 1, 100.0),
    Sketcher.Constraint("DistanceX", 15, 2, -1, 1, 1.0),
    Sketcher.Constraint("Radius", 2, 6.403049),
    Sketcher.Constraint("DistanceY", -1, 1, 3, 3, 60.064398),
    Sketcher.Constraint("DistanceY", -1, 1, 7, 1, 59.507301),
    Sketcher.Constraint("DistanceX", 5, 3, -1, 1, 97.670629),
    Sketcher.Constraint("DistanceY", -1, 1, 6, 3, 44.55671),
    Sketcher.Constraint("DistanceY", -1, 1, 8, 3, 65.343532),
    Sketcher.Constraint("DistanceX", 9, 3, -1, 1, 102.329371),
    Sketcher.Constraint("DistanceY", -1, 1, 9, 3, 66.428359),
    Sketcher.Constraint("DistanceX", -1, 1, 18, 3, 6.363961),
    Sketcher.Constraint("DistanceX", -1, 1, 19, 3, 15.21701),
    Sketcher.Constraint("DistanceY", -1, 1, 2, 2, 64.542068),
    Sketcher.Constraint("DistanceY", 18, 1, -1, 1, 111.732682),
    Sketcher.Constraint("DistanceY", -1, 1, 10, 3, 57.735027),
])
pocket1 = body.newObject("PartDesign::Pocket", "Pocket")
pocket1.Profile = sketch2
pocket1.Length = 7
doc.recompute()

fillet = body.newObject("PartDesign::Fillet", "Fillet")
fillet.Base = (pocket1, edges_at(pocket1, [
    (-70, 6, 57.735),
    (70, 6, 57.735),
    (0, 6, 17.321),
    (-15, 6, -89.489),
    (-85, 6, 31.754),
    (-15, 6, -8.66),
    (85, 6, 31.754),
    (15, 6, -89.489),
    (15, 6, -8.66),
]))
fillet.Radius = 6
doc.recompute()

fillet2 = body.newObject("PartDesign::Fillet", "Fillet001")
fillet2.Base = (fillet, edges_at(fillet, [
    (0, 12, 75.735),
    (0, 0, 57.735),
    (0, 12, 57.735),
    (26.804, 0, 32.796),
    (26.804, 12, 32.796),
    (41.804, 0, 6.815),
    (41.804, 12, 6.815),
    (50, 0, -28.868),
    (50, 12, -28.868),
    (-41.804, 0, 6.815),
    (-41.804, 12, 6.815),
    (-15, 0, -39.611),
    (-15, 12, -39.611),
    (-50, 0, -28.868),
    (-50, 12, -28.868),
    (-26.804, 0, 32.796),
    (-26.804, 12, 32.796),
    (15, 0, -39.611),
    (15, 12, -39.611),
    (53.403, 0, 53.288),
    (53.403, 12, 53.288),
    (72.85, 0, 19.605),
    (72.85, 12, 19.605),
    (-15.804, 0, -9.124),
    (-15.804, 12, -9.124),
    (-72.85, 0, 19.605),
    (-72.85, 12, 19.605),
    (-53.403, 0, 53.288),
    (-53.403, 12, 53.288),
    (15.804, 0, -9.124),
    (15.804, 12, -9.124),
    (19.447, 0, -72.893),
    (19.447, 12, -72.893),
    (-19.447, 0, -72.893),
    (-19.447, 12, -72.893),
    (0, 0, 18.249),
    (0, 12, 18.249),
    (0, 0, 75.735),
    (-115.588, 0, 66.735),
    (-65.588, 0, -37.868),
    (0, 0, -133.47),
    (65.588, 0, -37.868),
    (115.588, 0, 66.735),
    (115.588, 12, 66.735),
    (65.588, 12, -37.868),
    (0, 12, -133.47),
    (-65.588, 12, -37.868),
    (-115.588, 12, 66.735),
]))
fillet2.Radius = 0.5

doc.recompute()
